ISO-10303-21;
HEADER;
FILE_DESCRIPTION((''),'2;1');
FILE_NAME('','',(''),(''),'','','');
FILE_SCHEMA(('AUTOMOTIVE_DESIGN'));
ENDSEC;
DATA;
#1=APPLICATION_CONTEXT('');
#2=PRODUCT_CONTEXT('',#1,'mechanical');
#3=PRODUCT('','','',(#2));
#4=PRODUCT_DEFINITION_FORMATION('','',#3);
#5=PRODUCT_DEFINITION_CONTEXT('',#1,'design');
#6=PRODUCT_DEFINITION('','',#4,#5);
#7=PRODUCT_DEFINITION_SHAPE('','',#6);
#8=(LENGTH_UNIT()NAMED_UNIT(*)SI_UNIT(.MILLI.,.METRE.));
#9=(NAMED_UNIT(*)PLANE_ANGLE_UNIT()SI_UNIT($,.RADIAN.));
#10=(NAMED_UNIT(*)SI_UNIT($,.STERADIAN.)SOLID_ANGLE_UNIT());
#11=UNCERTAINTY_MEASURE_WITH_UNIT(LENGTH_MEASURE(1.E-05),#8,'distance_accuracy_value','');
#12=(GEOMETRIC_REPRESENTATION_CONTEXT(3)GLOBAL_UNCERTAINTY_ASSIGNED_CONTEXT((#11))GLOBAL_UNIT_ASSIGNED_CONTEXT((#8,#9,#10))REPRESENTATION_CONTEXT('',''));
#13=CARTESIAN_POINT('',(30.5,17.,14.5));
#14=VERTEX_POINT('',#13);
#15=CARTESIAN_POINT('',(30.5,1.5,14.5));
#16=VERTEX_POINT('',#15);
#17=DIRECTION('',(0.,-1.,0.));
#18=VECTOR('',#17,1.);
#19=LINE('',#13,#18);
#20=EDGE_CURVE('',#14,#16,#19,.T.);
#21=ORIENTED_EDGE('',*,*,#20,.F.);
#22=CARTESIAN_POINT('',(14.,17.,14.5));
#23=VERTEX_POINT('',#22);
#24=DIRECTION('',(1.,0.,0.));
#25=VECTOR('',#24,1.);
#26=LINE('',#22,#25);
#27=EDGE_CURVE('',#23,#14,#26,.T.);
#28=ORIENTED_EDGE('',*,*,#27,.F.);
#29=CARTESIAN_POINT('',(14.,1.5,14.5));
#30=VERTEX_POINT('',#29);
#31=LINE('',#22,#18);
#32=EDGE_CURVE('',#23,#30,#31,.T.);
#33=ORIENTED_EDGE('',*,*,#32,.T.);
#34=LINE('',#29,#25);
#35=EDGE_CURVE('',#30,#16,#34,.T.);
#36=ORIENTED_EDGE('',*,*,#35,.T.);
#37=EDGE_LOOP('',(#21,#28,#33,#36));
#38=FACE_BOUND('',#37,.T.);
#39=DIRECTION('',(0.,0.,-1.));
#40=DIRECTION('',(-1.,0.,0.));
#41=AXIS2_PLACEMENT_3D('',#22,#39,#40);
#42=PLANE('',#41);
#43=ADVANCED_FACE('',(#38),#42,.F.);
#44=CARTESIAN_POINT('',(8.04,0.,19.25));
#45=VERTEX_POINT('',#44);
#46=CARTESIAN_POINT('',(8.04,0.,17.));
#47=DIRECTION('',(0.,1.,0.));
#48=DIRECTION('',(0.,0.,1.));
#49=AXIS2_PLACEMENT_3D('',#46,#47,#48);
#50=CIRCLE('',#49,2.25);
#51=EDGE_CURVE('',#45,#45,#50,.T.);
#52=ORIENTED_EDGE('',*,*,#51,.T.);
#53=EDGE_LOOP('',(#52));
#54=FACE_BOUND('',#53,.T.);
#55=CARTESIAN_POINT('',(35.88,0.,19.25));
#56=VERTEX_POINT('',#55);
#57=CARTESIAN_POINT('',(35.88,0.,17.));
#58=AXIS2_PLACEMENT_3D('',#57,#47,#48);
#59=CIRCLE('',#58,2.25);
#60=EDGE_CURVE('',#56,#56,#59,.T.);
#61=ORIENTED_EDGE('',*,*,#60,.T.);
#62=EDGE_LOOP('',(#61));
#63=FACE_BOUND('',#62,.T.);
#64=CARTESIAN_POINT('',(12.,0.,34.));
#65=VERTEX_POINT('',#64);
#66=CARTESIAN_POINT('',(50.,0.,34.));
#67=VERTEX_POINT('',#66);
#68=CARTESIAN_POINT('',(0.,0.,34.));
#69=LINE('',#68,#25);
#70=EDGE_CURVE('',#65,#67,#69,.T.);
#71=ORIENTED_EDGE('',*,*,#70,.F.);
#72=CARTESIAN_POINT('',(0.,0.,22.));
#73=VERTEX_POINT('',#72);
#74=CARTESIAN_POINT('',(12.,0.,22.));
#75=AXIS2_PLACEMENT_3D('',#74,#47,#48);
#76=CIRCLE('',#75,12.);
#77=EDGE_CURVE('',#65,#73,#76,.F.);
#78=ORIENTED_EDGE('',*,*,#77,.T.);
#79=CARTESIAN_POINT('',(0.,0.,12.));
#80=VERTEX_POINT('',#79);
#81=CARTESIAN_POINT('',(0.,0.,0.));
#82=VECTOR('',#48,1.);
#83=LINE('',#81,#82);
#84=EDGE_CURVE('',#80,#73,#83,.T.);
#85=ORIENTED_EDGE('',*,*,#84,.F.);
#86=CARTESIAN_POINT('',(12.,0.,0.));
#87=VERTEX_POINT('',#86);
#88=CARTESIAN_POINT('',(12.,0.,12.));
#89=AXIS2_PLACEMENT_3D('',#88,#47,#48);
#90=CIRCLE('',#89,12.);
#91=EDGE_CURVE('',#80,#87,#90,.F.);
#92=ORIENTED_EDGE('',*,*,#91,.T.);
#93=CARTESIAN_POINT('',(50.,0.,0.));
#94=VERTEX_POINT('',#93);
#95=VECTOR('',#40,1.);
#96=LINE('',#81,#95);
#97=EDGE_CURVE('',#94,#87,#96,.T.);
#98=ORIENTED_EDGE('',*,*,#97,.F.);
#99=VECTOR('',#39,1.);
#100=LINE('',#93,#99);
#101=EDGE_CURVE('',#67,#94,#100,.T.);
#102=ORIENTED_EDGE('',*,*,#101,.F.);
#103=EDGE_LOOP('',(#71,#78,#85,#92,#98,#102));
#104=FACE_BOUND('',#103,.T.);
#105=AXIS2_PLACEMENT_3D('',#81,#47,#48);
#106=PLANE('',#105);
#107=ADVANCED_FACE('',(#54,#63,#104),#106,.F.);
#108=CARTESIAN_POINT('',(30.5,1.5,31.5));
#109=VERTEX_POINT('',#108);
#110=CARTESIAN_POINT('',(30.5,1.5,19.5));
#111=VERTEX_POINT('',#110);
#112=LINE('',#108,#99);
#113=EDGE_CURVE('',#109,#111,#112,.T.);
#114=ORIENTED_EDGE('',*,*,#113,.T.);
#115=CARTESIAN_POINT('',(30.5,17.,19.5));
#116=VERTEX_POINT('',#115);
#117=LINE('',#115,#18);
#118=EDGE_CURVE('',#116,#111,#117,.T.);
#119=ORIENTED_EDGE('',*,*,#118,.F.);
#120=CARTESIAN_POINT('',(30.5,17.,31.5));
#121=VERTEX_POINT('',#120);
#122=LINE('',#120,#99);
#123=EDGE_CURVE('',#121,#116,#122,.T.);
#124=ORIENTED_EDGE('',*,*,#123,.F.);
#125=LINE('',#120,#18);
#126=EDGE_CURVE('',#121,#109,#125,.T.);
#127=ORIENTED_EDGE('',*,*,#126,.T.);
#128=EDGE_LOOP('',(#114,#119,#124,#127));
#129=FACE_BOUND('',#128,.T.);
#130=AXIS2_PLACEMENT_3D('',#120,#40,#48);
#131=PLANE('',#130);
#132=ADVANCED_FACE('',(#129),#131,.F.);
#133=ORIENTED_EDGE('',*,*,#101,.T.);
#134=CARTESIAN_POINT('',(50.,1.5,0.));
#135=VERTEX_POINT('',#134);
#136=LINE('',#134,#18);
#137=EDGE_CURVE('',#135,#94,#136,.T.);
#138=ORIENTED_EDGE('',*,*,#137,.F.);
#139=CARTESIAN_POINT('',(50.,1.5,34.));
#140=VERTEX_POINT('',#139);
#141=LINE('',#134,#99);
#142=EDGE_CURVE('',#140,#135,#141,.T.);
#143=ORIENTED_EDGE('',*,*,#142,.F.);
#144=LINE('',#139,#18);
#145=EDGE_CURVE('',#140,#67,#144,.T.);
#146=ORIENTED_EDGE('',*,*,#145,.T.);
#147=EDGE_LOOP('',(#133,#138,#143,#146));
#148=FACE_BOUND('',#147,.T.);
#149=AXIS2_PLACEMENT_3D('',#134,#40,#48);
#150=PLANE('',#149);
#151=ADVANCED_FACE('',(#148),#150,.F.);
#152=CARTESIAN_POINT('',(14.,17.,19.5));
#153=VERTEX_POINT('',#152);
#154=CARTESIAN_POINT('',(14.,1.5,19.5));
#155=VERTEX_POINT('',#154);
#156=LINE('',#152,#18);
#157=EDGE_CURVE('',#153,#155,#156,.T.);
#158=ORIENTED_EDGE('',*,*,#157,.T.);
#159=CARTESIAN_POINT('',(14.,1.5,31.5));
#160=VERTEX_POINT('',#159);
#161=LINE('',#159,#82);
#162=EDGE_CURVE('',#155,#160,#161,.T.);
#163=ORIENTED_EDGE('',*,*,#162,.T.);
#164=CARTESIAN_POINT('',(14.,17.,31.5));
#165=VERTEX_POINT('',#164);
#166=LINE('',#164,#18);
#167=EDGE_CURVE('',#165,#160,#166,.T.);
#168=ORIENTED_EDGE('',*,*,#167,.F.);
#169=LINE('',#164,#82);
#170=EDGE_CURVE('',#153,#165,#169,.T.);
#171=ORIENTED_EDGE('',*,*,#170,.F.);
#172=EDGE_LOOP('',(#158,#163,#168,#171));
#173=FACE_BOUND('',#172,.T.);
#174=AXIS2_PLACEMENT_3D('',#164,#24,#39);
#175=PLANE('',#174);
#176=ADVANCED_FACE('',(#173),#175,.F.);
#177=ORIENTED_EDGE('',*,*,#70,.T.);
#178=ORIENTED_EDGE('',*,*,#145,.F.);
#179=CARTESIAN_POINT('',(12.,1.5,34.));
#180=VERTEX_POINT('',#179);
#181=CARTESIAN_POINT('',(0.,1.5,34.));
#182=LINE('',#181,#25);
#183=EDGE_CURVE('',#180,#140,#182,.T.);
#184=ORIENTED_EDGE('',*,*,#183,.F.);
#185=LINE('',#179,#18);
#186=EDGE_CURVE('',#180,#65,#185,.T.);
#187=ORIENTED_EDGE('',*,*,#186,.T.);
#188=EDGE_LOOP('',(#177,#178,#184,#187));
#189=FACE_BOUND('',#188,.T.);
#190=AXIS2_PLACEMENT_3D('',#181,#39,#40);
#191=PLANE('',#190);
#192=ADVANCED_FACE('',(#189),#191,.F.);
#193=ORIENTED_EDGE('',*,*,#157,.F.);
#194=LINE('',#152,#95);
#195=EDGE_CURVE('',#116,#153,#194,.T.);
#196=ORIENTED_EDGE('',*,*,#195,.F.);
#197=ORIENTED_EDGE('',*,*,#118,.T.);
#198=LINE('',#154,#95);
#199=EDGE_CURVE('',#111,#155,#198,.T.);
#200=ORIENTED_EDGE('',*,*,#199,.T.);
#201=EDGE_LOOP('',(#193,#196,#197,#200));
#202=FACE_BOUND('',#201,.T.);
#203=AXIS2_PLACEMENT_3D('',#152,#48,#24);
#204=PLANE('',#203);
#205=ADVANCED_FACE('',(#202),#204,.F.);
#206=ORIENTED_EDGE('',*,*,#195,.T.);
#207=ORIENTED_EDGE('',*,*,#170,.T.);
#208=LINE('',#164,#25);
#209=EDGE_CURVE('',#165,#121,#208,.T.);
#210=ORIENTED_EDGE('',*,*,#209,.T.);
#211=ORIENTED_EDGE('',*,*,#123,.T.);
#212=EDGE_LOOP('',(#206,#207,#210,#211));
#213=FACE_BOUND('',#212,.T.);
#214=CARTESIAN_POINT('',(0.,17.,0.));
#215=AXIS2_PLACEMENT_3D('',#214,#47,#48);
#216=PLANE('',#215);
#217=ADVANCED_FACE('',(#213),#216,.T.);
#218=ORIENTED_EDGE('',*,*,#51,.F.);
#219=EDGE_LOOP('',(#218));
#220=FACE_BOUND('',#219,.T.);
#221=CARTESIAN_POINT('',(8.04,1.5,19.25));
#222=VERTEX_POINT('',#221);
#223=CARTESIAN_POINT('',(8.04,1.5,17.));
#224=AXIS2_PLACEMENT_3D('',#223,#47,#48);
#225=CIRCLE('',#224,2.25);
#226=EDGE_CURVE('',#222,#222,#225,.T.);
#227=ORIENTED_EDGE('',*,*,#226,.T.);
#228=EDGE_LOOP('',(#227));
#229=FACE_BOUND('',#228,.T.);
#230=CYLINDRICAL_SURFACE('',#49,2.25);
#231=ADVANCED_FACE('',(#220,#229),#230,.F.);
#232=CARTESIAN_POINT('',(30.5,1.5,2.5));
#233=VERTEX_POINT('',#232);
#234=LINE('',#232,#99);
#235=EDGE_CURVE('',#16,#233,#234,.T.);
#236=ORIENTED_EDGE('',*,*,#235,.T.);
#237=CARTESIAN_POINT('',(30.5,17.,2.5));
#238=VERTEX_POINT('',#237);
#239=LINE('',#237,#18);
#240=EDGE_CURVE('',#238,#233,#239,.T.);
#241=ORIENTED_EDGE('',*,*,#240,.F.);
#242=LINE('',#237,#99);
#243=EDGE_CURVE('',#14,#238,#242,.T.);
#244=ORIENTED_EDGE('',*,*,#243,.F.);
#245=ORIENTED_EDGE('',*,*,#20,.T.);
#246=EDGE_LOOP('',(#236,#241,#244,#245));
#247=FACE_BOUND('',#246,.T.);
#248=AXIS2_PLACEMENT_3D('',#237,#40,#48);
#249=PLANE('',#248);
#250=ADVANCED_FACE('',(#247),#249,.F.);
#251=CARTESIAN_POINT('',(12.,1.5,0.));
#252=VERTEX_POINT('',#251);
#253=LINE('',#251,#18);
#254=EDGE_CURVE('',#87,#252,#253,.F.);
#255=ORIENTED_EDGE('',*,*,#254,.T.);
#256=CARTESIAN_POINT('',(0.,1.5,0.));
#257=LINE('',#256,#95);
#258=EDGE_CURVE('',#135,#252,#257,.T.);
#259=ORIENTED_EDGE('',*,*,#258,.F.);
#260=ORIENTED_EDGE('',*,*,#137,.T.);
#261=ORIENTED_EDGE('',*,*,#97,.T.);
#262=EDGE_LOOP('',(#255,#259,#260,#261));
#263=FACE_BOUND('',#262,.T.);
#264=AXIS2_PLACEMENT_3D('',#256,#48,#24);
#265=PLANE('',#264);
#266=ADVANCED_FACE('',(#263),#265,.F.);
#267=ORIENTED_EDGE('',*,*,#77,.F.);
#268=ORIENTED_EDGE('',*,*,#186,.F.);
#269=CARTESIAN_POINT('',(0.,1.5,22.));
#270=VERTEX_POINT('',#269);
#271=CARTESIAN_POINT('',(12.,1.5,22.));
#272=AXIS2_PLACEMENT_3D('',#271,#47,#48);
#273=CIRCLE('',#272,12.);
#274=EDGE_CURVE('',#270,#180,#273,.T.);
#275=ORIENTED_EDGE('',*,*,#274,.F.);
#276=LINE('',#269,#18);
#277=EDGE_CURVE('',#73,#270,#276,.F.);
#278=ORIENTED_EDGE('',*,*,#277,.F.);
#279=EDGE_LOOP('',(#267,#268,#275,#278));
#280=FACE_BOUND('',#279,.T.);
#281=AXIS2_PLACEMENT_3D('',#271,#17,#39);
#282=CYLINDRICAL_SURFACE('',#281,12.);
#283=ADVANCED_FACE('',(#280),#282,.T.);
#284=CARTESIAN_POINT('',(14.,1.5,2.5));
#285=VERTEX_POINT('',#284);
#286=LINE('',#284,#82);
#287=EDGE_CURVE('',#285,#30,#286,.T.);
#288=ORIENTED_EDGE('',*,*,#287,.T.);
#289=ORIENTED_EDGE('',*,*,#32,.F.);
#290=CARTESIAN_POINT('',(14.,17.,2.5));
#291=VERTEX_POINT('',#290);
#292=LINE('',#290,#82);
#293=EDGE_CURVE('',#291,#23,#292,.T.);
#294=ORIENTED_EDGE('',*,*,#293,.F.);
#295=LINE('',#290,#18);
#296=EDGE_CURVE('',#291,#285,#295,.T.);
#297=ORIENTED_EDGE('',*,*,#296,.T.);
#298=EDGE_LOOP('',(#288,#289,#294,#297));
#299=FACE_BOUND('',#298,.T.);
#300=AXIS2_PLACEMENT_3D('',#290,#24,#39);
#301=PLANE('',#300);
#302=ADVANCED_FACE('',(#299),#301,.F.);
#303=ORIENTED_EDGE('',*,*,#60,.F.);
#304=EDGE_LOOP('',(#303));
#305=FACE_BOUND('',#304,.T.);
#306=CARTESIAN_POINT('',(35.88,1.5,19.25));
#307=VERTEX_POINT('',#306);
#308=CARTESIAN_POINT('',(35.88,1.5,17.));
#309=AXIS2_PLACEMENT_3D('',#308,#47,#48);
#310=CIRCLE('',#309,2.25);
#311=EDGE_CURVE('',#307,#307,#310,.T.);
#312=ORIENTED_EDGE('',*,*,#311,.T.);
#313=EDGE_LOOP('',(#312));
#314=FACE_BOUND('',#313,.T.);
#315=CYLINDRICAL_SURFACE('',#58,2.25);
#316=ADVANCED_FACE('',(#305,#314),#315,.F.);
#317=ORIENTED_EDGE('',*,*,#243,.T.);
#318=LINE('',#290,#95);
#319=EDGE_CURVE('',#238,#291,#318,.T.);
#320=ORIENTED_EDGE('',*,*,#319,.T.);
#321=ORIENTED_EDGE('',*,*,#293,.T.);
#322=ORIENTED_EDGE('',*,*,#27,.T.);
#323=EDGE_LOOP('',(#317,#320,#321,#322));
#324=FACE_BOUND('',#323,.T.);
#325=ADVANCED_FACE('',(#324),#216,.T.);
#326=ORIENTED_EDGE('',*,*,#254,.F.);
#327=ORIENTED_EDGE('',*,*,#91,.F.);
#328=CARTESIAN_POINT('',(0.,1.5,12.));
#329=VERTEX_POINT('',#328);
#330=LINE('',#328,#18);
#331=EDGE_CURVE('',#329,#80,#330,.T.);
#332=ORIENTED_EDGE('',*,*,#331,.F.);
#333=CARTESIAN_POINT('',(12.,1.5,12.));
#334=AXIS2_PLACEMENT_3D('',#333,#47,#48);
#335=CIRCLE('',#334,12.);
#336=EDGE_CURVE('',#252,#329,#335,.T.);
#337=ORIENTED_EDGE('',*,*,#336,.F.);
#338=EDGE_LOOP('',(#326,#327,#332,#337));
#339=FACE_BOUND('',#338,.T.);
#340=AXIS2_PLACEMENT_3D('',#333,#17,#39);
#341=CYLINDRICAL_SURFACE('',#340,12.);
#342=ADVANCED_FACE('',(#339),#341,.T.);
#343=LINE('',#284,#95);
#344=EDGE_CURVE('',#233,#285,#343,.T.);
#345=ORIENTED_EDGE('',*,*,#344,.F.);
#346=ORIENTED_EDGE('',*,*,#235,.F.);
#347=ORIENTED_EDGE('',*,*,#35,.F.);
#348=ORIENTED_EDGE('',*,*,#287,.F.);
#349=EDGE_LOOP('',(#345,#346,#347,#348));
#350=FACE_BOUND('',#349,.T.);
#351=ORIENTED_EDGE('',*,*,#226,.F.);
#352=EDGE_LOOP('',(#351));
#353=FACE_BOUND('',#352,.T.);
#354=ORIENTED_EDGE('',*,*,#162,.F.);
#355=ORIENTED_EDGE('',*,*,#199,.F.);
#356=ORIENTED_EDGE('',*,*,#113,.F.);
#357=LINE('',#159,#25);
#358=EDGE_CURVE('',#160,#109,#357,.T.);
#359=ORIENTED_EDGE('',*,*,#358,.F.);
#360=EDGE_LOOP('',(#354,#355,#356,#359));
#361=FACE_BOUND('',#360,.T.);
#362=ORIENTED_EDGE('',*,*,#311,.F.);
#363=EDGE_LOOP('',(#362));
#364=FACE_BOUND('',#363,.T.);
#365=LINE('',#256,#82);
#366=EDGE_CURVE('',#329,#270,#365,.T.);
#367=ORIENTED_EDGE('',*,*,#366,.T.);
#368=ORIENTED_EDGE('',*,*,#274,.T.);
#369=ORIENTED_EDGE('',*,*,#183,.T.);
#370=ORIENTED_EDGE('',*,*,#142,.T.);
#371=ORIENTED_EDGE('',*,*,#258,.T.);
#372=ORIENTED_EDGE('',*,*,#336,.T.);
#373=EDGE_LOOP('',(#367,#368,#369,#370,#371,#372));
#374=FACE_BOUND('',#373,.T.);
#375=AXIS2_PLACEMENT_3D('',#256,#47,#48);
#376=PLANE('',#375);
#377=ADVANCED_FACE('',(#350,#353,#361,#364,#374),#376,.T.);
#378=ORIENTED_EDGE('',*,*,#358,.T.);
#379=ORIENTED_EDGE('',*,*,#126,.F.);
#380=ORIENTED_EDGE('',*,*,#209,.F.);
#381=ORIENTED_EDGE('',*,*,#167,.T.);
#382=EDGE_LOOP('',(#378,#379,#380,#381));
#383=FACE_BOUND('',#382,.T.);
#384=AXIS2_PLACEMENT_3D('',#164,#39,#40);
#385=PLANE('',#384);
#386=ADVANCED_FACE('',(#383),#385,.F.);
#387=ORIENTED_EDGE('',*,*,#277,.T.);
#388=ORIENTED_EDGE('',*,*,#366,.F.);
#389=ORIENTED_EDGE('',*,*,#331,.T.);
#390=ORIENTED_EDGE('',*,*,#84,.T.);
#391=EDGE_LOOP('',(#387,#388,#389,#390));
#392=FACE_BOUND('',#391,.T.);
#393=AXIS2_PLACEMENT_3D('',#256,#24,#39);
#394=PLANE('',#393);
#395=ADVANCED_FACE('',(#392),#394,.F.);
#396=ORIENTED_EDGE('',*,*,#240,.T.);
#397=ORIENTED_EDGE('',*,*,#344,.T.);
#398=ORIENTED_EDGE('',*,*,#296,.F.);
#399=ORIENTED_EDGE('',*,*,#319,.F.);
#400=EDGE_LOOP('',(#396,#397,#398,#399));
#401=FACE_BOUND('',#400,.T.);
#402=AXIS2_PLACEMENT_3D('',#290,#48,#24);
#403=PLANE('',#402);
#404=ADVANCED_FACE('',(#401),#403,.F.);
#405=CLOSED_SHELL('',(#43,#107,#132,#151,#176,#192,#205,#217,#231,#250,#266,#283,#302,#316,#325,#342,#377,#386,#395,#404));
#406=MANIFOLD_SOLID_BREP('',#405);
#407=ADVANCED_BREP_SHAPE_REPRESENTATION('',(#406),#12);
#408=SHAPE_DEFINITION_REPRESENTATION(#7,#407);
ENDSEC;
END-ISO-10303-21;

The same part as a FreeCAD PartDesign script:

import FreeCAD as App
import Part
import Sketcher


def edges_at(feature, points):
    """Names of the edges that pass closest to the given points."""
    edges = feature.Shape.Edges
    near = lambda p: min(range(len(edges)), key=lambda i: edges[i].distToShape(Part.Vertex(*p))[0])
    return sorted({f"Edge{near(p) + 1}" for p in points})

doc = App.newDocument("Part")
params = doc.addObject("Spreadsheet::Sheet", "Params")
for row, (alias, value) in enumerate([
    ("sketch1_width", "50 mm"),
    ("sketch1_height", "34 mm"),
    ("pad1_length", "1.5 mm"),
    ("fillet_radius", "12 mm"),
    ("sketch2_diameter", "4.5 mm"),
    ("pocket1_length", "1.5 mm"),
    ("sketch3_height", "12 mm"),
    ("sketch3_width", "16.5 mm"),
    ("pad2_length", "15.5 mm"),
], start=1):
    params.set(f"A{row}", alias)
    params.set(f"B{row}", "=" + value)
    params.setAlias(f"B{row}", alias)

body = doc.addObject("PartDesign::Body", "Body")

# Sketch on XZ plane
sketch1 = doc.addObject("Sketcher::SketchObject", "Sketch")
body.addObject(sketch1)
sketch1.AttachmentSupport = (doc.XZ_Plane, [""])
sketch1.MapMode = "FlatFace"
sketch1.addGeometry([
    Part.LineSegment(App.Vector(0, 0, 0), App.Vector(0, 34, 0)),
    Part.LineSegment(App.Vector(0, 34, 0), App.Vector(50, 34, 0)),
    Part.LineSegment(App.Vector(50, 34, 0), App.Vector(50, 0, 0)),
    Part.LineSegment(App.Vector(50, 0, 0), App.Vector(0, 0, 0)),
], False)
sketch1.addConstraint([
    Sketcher.Constraint("Coincident", 0, 2, 1, 1),
    Sketcher.Constraint("Coincident", 1, 2, 2, 1),
    Sketcher.Constraint("Coincident", 2, 2, 3, 1),
    Sketcher.Constraint("Coincident", 3, 2, 0, 1),
    Sketcher.Constraint("Vertical", 0),
    Sketcher.Constraint("Horizontal", 1),
    Sketcher.Constraint("Vertical", 2),
    Sketcher.Constraint("Horizontal", 3),
    Sketcher.Constraint("Coincident", 3, 2, -1, 1),
    Sketcher.Constraint("DistanceX", 1, 1, 1, 2, 50.0),
    Sketcher.Constraint("DistanceY", 0, 1, 0, 2, 34.0),
])
sketch1.setExpression("Constraints[9]", "Params.sketch1_width")
sketch1.setExpression("Constraints[10]", "Params.sketch1_height")
pad1 = doc.addObject("PartDesign::Pad", "Pad")
body.addObject(pad1)
pad1.Profile = sketch1
pad1.setExpression("Length", "Params.pad1_length")
pad1.Reversed = True
doc.recompute()

fillet = doc.addObject("PartDesign::Fillet", "Fillet")
body.addObject(fillet)
fillet.Base = (pad1, edges_at(pad1, [(0, 0.75, 0), (0, 0.75, 34)]))
fillet.setExpression("Radius", "Params.fillet_radius")

# Sketch on XZ plane
sketch2 = doc.addObject("Sketcher::SketchObject", "Sketch001")
body.addObject(sketch2)
sketch2.AttachmentSupport = (doc.XZ_Plane, [""])
sketch2.MapMode = "FlatFace"
sketch2.AttachmentOffset = App.Placement(App.Vector(0, 0, -1.5), App.Rotation())
sketch2.addGeometry([
    Part.Circle(App.Vector(8, 17, 0), App.Vector(0, 0, 1), 2.2),
    Part.Circle(App.Vector(35.9, 17, 0), App.Vector(0, 0, 1), 2.2),
], False)
sketch2.addConstraint([
    Sketcher.Constraint("Equal", 0, 1),
    Sketcher.Constraint("Horizontal", 0, 3, 1, 3),
    Sketcher.Constraint("Diameter", 0, 4.5),
    Sketcher.Constraint("DistanceY", -1, 1, 0, 3, 17.0),
    Sketcher.Constraint("DistanceX", -1, 1, 0, 3, 8.04),
    Sketcher.Constraint("DistanceX", -1, 1, 1, 3, 35.88),
])
sketch2.setExpression("Constraints[2]", "Params.sketch2_diameter")
pocket1 = doc.addObject("PartDesign::Pocket", "Pocket")
body.addObject(pocket1)
pocket1.Profile = sketch2
pocket1.setExpression("Length", "Params.pocket1_length")
pocket1.Reversed = True

# Sketch on XZ plane
sketch3 = doc.addObject("Sketcher::SketchObject", "Sketch002")
body.addObject(sketch3)
sketch3.AttachmentSupport = (doc.XZ_Plane, [""])
sketch3.MapMode = "FlatFace"
sketch3.AttachmentOffset = App.Placement(App.Vector(0, 0, -1.5), App.Rotation())
sketch3.addGeometry([
    Part.LineSegment(App.Vector(14, 2, 0), App.Vector(14, 14, 0)),  # 0
    Part.LineSegment(App.Vector(14, 14, 0), App.Vector(30, 14, 0)),  # 1
    Part.LineSegment(App.Vector(30, 14, 0), App.Vector(30, 2, 0)),  # 2
    Part.LineSegment(App.Vector(30, 2, 0), App.Vector(14, 2, 0)),  # 3
    Part.LineSegment(App.Vector(14, 20, 0), App.Vector(14, 32, 0)),  # 4
    Part.LineSegment(App.Vector(14, 32, 0), App.Vector(30, 32, 0)),  # 5
    Part.LineSegment(App.Vector(30, 32, 0), App.Vector(30, 20, 0)),  # 6
    Part.LineSegment(App.Vector(30, 20, 0), App.Vector(14, 20, 0)),  # 7
], False)
sketch3.addConstraint([
    Sketcher.Constraint("Coincident", 0, 2, 1, 1),
    Sketcher.Constraint("Coincident", 1, 2, 2, 1),
    Sketcher.Constraint("Coincident", 2, 2, 3, 1),
    Sketcher.Constraint("Coincident", 3, 2, 0, 1),
    Sketcher.Constraint("Coincident", 4, 2, 5, 1),
    Sketcher.Constraint("Coincident", 5, 2, 6, 1),
    Sketcher.Constraint("Coincident", 6, 2, 7, 1),
    Sketcher.Constraint("Coincident", 7, 2, 4, 1),
    Sketcher.Constraint("Vertical", 0),
    Sketcher.Constraint("Horizontal", 1),
    Sketcher.Constraint("Vertical", 2),
    Sketcher.Constraint("Horizontal", 3),
    Sketcher.Constraint("Vertical", 4),
    Sketcher.Constraint("Horizontal", 5),
    Sketcher.Constraint("Vertical", 6),
    Sketcher.Constraint("Horizontal", 7),
    Sketcher.Constraint("Vertical", 3, 2, 4, 2),
    Sketcher.Constraint("Vertical", 2, 2, 5, 2),
    Sketcher.Constraint("Equal", 2, 4),
    Sketcher.Constraint("DistanceY", 0, 1, 0, 2, 12.0),
    Sketcher.Constraint("DistanceX", 1, 1, 1, 2, 16.5),
    Sketcher.Constraint("DistanceX", -1, 1, 0, 2, 14.0),
    Sketcher.Constraint("DistanceY", 0, 2, 4, 2, 17.0),
    Sketcher.Constraint("DistanceY", -1, 1, 0, 2, 14.5),
])
sketch3.setExpression("Constraints[19]", "Params.sketch3_height")
sketch3.setExpression("Constraints[20]", "Params.sketch3_width")
pad2 = doc.addObject("PartDesign::Pad", "Pad001")
body.addObject(pad2)
pad2.Profile = sketch3
pad2.setExpression("Length", "Params.pad2_length")
pad2.Reversed = True

doc.recompute()
